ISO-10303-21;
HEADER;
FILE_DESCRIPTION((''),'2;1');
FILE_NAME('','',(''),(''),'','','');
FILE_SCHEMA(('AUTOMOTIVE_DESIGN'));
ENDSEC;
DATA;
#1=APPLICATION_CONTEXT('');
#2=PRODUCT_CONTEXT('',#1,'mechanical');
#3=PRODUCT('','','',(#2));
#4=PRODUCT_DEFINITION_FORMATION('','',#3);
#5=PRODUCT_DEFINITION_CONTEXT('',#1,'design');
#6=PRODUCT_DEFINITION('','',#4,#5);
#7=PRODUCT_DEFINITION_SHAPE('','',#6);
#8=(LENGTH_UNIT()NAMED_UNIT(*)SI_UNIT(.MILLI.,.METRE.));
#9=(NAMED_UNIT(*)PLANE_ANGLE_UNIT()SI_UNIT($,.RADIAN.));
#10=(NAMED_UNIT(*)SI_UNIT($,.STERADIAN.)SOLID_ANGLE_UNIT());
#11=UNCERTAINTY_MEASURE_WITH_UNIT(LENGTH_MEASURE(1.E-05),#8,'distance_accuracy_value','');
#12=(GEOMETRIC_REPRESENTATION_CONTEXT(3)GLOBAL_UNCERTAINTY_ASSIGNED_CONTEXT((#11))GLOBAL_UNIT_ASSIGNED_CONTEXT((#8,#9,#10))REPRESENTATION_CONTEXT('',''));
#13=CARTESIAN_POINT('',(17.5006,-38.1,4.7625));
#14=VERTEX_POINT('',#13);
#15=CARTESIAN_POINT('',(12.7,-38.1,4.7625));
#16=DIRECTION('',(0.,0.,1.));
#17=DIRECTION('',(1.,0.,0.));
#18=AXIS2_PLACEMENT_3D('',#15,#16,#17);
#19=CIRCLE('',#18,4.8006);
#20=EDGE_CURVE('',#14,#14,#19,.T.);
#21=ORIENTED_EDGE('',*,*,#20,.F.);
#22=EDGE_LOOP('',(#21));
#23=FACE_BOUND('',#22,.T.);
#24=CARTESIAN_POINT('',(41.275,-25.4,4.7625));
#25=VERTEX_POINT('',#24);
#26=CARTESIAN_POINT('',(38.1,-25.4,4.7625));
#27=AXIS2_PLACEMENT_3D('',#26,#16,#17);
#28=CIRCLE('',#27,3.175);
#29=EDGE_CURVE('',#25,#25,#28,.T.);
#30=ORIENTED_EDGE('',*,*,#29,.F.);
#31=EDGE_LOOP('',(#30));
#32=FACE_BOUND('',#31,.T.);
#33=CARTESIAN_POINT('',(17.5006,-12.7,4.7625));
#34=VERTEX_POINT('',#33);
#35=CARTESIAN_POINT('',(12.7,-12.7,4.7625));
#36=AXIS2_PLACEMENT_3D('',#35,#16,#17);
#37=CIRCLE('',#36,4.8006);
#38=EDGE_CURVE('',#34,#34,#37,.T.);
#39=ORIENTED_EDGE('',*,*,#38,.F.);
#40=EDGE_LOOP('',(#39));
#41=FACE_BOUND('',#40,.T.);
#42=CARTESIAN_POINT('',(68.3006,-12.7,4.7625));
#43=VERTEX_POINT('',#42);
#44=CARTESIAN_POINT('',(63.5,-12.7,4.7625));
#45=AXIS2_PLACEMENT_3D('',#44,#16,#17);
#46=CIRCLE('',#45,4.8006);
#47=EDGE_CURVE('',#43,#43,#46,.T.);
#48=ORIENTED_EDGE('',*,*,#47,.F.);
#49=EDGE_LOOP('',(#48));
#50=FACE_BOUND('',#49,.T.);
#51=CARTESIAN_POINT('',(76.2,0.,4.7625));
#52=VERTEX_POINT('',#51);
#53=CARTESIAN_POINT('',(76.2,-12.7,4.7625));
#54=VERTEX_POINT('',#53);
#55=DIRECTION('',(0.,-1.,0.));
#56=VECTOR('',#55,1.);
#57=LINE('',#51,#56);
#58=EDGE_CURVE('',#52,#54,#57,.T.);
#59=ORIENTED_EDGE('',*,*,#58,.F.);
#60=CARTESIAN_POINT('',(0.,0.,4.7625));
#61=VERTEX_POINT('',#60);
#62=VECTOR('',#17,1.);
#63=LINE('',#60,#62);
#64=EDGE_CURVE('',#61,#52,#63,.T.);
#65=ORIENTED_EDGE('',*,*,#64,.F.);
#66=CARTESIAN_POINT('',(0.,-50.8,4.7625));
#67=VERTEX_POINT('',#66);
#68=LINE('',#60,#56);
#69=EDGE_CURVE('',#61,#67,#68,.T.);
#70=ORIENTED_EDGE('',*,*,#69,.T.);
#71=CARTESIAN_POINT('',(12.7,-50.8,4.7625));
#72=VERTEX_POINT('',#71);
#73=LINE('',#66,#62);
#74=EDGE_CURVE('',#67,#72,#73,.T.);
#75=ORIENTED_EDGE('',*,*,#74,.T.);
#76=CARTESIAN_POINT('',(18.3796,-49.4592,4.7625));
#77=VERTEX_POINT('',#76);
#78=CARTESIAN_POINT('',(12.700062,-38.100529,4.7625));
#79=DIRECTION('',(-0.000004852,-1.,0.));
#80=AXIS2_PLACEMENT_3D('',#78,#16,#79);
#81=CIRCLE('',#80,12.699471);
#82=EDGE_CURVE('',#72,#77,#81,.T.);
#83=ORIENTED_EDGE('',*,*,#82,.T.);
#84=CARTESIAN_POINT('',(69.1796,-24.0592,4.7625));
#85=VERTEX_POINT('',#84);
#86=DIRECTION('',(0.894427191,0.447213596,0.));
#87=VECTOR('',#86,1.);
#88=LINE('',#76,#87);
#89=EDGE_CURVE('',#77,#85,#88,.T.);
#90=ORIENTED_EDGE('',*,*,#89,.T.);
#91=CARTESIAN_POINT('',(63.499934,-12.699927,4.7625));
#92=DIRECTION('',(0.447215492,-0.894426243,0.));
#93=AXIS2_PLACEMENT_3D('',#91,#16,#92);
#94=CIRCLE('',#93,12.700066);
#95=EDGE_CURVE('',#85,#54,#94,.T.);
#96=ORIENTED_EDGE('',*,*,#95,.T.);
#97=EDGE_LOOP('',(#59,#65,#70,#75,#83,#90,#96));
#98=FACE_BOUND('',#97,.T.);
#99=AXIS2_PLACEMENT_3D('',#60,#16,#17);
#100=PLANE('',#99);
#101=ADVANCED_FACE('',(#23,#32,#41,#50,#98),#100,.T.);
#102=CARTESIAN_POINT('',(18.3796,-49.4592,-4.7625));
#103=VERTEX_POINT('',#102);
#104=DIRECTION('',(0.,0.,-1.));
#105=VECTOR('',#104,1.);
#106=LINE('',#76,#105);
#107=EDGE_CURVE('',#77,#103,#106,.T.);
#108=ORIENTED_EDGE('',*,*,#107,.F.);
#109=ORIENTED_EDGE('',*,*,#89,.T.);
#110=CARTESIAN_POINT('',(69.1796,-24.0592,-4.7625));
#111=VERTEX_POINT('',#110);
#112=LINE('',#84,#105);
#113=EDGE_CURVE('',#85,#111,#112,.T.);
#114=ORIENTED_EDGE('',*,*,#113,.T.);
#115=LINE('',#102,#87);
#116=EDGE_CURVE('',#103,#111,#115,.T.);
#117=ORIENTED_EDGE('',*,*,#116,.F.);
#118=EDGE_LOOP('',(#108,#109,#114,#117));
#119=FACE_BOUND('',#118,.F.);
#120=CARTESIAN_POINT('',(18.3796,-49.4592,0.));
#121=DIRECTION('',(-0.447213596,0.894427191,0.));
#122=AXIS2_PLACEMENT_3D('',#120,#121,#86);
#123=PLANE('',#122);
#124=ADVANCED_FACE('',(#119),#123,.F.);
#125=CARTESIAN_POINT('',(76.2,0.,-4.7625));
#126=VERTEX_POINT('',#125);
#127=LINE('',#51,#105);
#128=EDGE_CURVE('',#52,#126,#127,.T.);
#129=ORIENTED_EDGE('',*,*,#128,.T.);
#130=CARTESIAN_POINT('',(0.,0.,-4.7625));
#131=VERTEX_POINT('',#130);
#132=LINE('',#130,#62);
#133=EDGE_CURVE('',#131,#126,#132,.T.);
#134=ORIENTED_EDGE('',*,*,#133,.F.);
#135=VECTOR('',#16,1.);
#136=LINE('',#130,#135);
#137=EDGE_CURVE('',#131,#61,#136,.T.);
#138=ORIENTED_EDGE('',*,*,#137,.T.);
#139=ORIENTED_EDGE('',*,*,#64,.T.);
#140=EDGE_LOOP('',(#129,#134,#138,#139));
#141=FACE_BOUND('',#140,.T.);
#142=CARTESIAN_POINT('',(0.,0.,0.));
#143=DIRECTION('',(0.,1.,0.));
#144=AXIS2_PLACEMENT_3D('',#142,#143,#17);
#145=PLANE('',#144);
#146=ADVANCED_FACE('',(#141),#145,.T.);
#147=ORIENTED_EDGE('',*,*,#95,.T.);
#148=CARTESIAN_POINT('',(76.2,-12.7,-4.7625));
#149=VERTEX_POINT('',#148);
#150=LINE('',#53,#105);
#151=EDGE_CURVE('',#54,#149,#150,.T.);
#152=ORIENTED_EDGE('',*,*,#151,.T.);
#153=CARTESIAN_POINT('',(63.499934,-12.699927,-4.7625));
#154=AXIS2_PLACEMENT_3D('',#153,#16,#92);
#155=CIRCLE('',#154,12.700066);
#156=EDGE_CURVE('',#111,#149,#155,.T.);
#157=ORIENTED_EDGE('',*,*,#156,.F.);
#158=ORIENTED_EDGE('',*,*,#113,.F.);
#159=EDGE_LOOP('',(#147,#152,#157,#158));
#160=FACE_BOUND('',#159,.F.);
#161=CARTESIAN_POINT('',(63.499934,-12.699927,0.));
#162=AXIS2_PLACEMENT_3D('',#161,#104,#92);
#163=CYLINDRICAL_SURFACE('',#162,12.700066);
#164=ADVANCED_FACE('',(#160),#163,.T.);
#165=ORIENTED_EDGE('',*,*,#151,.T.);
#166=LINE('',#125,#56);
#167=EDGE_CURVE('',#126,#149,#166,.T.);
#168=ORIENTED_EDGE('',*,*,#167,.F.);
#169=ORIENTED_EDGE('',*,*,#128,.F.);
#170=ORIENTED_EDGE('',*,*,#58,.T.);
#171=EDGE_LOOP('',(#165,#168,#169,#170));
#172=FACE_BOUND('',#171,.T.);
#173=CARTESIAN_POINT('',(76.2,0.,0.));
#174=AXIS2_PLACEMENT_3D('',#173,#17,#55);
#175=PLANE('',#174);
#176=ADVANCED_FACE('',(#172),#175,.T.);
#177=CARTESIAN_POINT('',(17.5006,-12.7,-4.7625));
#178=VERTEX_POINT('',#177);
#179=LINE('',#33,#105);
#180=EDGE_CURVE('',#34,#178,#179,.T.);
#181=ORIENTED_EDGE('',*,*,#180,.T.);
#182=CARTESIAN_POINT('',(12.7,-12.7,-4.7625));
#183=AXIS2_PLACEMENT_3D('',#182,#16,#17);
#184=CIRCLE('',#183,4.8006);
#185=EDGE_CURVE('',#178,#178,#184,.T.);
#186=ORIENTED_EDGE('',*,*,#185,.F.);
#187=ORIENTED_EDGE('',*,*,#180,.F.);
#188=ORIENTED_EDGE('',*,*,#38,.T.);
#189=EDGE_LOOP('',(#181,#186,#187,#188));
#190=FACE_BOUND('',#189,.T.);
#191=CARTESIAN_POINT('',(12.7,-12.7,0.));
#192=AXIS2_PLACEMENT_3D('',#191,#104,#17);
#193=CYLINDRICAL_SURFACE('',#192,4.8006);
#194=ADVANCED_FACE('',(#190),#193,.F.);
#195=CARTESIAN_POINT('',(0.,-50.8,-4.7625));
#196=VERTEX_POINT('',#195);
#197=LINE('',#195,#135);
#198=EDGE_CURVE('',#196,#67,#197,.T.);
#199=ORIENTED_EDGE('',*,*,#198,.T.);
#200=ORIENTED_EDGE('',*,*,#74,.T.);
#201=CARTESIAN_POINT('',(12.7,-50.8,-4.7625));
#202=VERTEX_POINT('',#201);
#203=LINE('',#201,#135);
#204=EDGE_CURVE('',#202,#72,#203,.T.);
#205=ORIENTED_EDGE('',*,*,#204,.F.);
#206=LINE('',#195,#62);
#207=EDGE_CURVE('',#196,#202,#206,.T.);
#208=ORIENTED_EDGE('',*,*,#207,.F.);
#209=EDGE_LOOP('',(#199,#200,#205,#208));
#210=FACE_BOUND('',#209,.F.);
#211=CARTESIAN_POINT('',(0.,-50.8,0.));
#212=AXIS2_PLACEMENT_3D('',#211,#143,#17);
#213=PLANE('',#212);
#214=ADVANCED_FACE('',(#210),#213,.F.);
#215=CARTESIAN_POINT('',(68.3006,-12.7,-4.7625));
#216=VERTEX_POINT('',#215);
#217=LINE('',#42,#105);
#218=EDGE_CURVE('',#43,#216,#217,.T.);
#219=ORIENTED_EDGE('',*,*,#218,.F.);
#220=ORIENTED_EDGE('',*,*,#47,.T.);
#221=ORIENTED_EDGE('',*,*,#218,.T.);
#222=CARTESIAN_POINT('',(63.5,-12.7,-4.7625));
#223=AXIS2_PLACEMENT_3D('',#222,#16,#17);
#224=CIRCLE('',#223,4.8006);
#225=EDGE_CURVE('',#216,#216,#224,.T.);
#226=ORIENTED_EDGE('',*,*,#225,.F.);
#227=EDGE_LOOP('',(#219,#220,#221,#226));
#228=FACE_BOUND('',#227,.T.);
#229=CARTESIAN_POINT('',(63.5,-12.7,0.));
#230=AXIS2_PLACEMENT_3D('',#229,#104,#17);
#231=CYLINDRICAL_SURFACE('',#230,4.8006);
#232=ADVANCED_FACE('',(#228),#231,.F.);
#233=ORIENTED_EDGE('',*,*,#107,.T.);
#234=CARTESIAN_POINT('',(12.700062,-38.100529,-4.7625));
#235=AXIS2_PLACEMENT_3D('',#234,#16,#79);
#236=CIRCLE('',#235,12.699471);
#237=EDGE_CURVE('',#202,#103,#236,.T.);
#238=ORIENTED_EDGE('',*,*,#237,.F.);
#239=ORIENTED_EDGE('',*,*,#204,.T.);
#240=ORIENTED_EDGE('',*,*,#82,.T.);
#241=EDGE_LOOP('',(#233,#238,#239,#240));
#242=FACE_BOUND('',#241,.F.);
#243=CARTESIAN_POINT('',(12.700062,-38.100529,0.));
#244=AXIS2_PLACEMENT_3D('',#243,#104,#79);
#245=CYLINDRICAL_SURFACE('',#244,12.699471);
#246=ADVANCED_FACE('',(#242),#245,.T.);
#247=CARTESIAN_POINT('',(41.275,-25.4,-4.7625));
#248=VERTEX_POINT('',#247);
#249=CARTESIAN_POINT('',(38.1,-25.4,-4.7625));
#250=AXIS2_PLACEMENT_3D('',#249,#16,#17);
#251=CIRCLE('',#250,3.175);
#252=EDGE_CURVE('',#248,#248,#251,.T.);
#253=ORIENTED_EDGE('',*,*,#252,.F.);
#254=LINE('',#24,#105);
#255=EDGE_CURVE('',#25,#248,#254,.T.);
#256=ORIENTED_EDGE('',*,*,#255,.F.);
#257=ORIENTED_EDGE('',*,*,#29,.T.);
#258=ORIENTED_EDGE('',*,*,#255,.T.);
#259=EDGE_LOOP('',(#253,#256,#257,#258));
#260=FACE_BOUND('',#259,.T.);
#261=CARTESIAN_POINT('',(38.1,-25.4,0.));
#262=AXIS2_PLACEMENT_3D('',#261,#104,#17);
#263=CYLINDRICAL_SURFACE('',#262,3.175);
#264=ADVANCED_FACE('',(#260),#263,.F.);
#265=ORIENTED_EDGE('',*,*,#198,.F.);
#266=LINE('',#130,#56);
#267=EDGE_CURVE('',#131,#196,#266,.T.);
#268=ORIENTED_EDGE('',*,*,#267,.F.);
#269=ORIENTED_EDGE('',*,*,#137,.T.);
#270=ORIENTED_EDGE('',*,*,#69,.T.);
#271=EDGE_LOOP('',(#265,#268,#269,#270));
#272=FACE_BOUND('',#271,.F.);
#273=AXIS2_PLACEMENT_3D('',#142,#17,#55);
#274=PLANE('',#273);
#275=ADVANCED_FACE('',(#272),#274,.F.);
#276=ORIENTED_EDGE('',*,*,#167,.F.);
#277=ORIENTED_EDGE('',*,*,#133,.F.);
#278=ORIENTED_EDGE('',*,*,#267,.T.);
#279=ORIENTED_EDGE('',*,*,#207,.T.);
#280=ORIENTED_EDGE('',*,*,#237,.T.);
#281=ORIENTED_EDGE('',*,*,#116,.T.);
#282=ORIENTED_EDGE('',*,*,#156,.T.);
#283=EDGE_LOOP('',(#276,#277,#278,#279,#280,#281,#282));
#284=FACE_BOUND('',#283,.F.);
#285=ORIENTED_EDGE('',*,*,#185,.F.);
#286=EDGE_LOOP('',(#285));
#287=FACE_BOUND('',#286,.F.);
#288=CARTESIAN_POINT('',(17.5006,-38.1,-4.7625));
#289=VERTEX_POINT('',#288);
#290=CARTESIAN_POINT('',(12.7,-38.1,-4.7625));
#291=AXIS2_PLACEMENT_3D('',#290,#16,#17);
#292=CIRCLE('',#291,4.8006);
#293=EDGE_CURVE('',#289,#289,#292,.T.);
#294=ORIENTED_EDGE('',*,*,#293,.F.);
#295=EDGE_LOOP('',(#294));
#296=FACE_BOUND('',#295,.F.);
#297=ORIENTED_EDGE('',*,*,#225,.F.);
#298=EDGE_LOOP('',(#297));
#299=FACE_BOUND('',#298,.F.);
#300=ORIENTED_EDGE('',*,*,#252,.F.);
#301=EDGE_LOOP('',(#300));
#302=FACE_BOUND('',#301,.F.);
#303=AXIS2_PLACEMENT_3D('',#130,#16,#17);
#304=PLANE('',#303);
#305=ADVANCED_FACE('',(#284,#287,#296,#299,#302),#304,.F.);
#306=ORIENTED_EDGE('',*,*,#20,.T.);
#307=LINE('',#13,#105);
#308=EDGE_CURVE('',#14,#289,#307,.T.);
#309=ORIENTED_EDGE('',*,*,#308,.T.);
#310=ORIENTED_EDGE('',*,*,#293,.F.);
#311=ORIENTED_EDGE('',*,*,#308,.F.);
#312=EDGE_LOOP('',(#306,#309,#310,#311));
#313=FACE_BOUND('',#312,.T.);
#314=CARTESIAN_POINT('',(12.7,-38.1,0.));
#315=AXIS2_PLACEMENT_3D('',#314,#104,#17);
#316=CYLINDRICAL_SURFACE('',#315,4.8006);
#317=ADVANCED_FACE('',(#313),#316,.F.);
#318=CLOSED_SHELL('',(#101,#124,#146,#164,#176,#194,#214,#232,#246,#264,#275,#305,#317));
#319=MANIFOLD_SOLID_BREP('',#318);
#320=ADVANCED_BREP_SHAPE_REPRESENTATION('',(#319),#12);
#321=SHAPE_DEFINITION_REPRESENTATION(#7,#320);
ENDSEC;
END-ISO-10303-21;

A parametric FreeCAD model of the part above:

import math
import FreeCAD as App
import Part
import Sketcher
from FreeCAD import Vector
Q = App.Units.Quantity

doc = App.newDocument("Part")
body = doc.addObject("PartDesign::Body", "Body")

# Sketch on XY plane
sketch1 = body.newObject("Sketcher::SketchObject", "Sketch")
sketch1.AttachmentSupport = (doc.getObject("XY_Plane"), [""])
sketch1.MapMode = "FlatFace"
sketch1.addGeometry(Part.LineSegment(Vector(76.2, 0, 0), Vector(0, 0, 0)), False)
sketch1.addGeometry(Part.LineSegment(Vector(0, 0, 0), Vector(0, -50.8, 0)), False)
sketch1.addGeometry(Part.LineSegment(Vector(0, -50.8, 0), Vector(12.7, -50.8, 0)), False)
sketch1.addGeometry(Part.ArcOfCircle(Part.Circle(Vector(12.7, -38.1, 0), Vector(0, 0, 1), 12.7), math.radians(-90), math.radians(-63.434949)), False)
sketch1.addGeometry(Part.LineSegment(Vector(18.3796, -49.4592, 0), Vector(69.1796, -24.0592, 0)), False)
sketch1.addGeometry(Part.ArcOfCircle(Part.Circle(Vector(63.5, -12.7, 0), Vector(0, 0, 1), 12.699972), math.radians(-63.434949), math.radians(0)), False)
sketch1.addGeometry(Part.LineSegment(Vector(76.2, -12.7, 0), Vector(76.2, 0, 0)), False)
sketch1.addGeometry(Part.Circle(Vector(12.7, -38.1, 0), Vector(0, 0, 1), 4.8006), False)
sketch1.addGeometry(Part.Circle(Vector(12.7, -12.7, 0), Vector(0, 0, 1), 4.8006), False)
sketch1.addGeometry(Part.Circle(Vector(38.1, -25.4, 0), Vector(0, 0, 1), 3.175), False)
sketch1.addGeometry(Part.Circle(Vector(63.5, -12.7, 0), Vector(0, 0, 1), 4.8006), False)
sketch1.addConstraint(Sketcher.Constraint("Coincident", 0, 2, 1, 1))
sketch1.addConstraint(Sketcher.Constraint("Coincident", 1, 2, 2, 1))
sketch1.addConstraint(Sketcher.Constraint("Tangent", 2, 2, 3, 1))
sketch1.addConstraint(Sketcher.Constraint("Tangent", 3, 2, 4, 1))
sketch1.addConstraint(Sketcher.Constraint("Tangent", 4, 2, 5, 1))
sketch1.addConstraint(Sketcher.Constraint("Tangent", 5, 2, 6, 1))
sketch1.addConstraint(Sketcher.Constraint("Coincident", 6, 2, 0, 1))
sketch1.addConstraint(Sketcher.Constraint("Horizontal", 0))
sketch1.addConstraint(Sketcher.Constraint("Vertical", 1))
sketch1.addConstraint(Sketcher.Constraint("Horizontal", 2))
sketch1.addConstraint(Sketcher.Constraint("Vertical", 6))
sketch1.addConstraint(Sketcher.Constraint("Coincident", 0, 2, -1, 1))
sketch1.addConstraint(Sketcher.Constraint("Coincident", 7, 3, 3, 3))
sketch1.addConstraint(Sketcher.Constraint("Coincident", 10, 3, 5, 3))
sketch1.addConstraint(Sketcher.Constraint("Equal", 3, 5))
sketch1.addConstraint(Sketcher.Constraint("Equal", 7, 8))
sketch1.addConstraint(Sketcher.Constraint("Equal", 8, 10))
sketch1.addConstraint(Sketcher.Constraint("Horizontal", 5, 3, 8, 3))
sketch1.addConstraint(Sketcher.Constraint("Vertical", 7, 3, 8, 3))
sketch1.addConstraint(Sketcher.Constraint("Equal", 2, 6))
sketch1.addConstraint(Sketcher.Constraint("Radius", 3, Q("0.5 in")))
sketch1.addConstraint(Sketcher.Constraint("Diameter", 9, Q("0.25 in")))
sketch1.addConstraint(Sketcher.Constraint("DistanceX", 0, 2, 0, 1, Q("3 in")))
sketch1.addConstraint(Sketcher.Constraint("DistanceY", 1, 2, 1, 1, Q("2 in")))
sketch1.addConstraint(Sketcher.Constraint("Diameter", 7, Q("0.378 in")))
sketch1.addConstraint(Sketcher.Constraint("DistanceX", 2, 1, 2, 2, Q("0.5 in")))
sketch1.addConstraint(Sketcher.Constraint("DistanceY", 9, 3, -1, 1, Q("1 in")))
sketch1.addConstraint(Sketcher.Constraint("DistanceX", 9, 3, 5, 3, Q("1 in")))
pad1 = body.newObject("PartDesign::Pad", "Pad")
pad1.Profile = sketch1
pad1.Length = Q("0.375 in")
pad1.Midplane = True

doc.recompute()
